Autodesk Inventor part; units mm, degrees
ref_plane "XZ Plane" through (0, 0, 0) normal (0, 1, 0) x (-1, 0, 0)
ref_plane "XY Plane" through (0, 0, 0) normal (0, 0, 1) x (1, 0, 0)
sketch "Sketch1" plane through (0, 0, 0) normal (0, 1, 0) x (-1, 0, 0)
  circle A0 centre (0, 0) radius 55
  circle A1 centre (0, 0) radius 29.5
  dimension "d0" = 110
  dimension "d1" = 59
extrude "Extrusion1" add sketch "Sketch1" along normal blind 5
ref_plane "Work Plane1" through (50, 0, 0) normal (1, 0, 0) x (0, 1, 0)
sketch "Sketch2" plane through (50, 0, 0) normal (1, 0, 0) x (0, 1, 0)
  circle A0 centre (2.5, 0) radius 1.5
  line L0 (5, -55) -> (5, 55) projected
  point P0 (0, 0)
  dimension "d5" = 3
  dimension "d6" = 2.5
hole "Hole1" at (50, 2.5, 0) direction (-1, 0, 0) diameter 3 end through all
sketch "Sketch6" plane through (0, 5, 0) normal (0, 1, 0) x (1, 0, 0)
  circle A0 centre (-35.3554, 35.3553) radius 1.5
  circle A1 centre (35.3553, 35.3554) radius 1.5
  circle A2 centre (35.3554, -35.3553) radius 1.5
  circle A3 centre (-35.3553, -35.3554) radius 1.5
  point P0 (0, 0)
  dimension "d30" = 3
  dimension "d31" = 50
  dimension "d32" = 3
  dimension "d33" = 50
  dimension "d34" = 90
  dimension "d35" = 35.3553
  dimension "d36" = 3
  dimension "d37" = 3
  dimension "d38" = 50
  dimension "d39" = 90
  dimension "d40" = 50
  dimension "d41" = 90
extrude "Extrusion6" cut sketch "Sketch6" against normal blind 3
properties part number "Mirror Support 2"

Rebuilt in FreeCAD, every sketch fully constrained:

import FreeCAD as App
import Part
import Sketcher

V = App.Vector
Q = App.Units.Quantity

doc = App.newDocument("Part")
body = doc.addObject("PartDesign::Body", "Body")

sketch1 = body.newObject("Sketcher::SketchObject", "Sketch")
sketch1.AttachmentSupport = (doc.getObject("XZ_Plane"), [""])
sketch1.MapMode = "FlatFace"
sketch1.addGeometry(Part.Circle(V(0, 0, 0), V(0, 0, 1), 55), False)
sketch1.addGeometry(Part.Circle(V(0, 0, 0), V(0, 0, 1), 29.5), False)
sketch1.addConstraint(Sketcher.Constraint("Coincident", 0, 3, -1, 1))
sketch1.addConstraint(Sketcher.Constraint("Coincident", 1, 3, -1, 1))
sketch1.addConstraint(Sketcher.Constraint("Diameter", 0, Q("110 mm")))
sketch1.addConstraint(Sketcher.Constraint("Diameter", 1, Q("59 mm")))
pad1 = body.newObject("PartDesign::Pad", "Pad")
pad1.Profile = sketch1
pad1.Length = 5
pad1.Reversed = True

sketch2 = body.newObject("Sketcher::SketchObject", "Sketch001")
sketch2.AttachmentSupport = (doc.getObject("YZ_Plane"), [""])
sketch2.MapMode = "FlatFace"
sketch2.AttachmentOffset = App.Placement(V(0, 0, 50), App.Rotation())
sketch2.addGeometry(Part.Circle(V(2.5, 0, 0), V(0, 0, 1), 1.5), False)
sketch2.addConstraint(Sketcher.Constraint("PointOnObject", 0, 3, -1))
sketch2.addConstraint(Sketcher.Constraint("Diameter", 0, Q("3 mm")))
sketch2.addConstraint(Sketcher.Constraint("DistanceX", -1, 1, 0, 3, Q("2.5 mm")))
doc.recompute()
hole = body.newObject("PartDesign::Hole", "Hole")
hole.Profile = sketch2
hole.ThreadType = "None"
hole.Diameter = 3
hole.DepthType = "ThroughAll"

sketch3 = body.newObject("Sketcher::SketchObject", "Sketch002")
sketch3.AttachmentSupport = (doc.getObject("XZ_Plane"), [""])
sketch3.MapMode = "FlatFace"
sketch3.AttachmentOffset = App.Placement(V(0, 0, -5), App.Rotation())
sketch3.addGeometry(Part.Circle(V(-35.3554, -35.3553, 0), V(0, 0, 1), 1.5), False)
sketch3.addGeometry(Part.Circle(V(35.3553, -35.3554, 0), V(0, 0, 1), 1.5), False)
sketch3.addGeometry(Part.Circle(V(35.3554, 35.3553, 0), V(0, 0, 1), 1.5), False)
sketch3.addGeometry(Part.Circle(V(-35.3553, 35.3554, 0), V(0, 0, 1), 1.5), False)
sketch3.addConstraint(Sketcher.Constraint("Equal", 0, 1))
sketch3.addConstraint(Sketcher.Constraint("Equal", 1, 2))
sketch3.addConstraint(Sketcher.Constraint("Equal", 2, 3))
sketch3.addConstraint(Sketcher.Constraint("Symmetric", 0, 3, 2, 3, -1, 1))
sketch3.addConstraint(Sketcher.Constraint("Symmetric", 1, 3, 3, 3, -1, 1))
sketch3.addConstraint(Sketcher.Constraint("Symmetric", 0, 3, 1, 3, -2))
sketch3.addConstraint(Sketcher.Constraint("Diameter", 0, Q("3 mm")))
sketch3.addConstraint(Sketcher.Constraint("DistanceX", 0, 3, -1, 1, Q("35.3554 mm")))
sketch3.addConstraint(Sketcher.Constraint("DistanceY", 0, 3, -1, 1, Q("35.3553 mm")))
pocket1 = body.newObject("PartDesign::Pocket", "Pocket")
pocket1.Profile = sketch3
pocket1.Length = 3
pocket1.Reversed = True

doc.recompute()
